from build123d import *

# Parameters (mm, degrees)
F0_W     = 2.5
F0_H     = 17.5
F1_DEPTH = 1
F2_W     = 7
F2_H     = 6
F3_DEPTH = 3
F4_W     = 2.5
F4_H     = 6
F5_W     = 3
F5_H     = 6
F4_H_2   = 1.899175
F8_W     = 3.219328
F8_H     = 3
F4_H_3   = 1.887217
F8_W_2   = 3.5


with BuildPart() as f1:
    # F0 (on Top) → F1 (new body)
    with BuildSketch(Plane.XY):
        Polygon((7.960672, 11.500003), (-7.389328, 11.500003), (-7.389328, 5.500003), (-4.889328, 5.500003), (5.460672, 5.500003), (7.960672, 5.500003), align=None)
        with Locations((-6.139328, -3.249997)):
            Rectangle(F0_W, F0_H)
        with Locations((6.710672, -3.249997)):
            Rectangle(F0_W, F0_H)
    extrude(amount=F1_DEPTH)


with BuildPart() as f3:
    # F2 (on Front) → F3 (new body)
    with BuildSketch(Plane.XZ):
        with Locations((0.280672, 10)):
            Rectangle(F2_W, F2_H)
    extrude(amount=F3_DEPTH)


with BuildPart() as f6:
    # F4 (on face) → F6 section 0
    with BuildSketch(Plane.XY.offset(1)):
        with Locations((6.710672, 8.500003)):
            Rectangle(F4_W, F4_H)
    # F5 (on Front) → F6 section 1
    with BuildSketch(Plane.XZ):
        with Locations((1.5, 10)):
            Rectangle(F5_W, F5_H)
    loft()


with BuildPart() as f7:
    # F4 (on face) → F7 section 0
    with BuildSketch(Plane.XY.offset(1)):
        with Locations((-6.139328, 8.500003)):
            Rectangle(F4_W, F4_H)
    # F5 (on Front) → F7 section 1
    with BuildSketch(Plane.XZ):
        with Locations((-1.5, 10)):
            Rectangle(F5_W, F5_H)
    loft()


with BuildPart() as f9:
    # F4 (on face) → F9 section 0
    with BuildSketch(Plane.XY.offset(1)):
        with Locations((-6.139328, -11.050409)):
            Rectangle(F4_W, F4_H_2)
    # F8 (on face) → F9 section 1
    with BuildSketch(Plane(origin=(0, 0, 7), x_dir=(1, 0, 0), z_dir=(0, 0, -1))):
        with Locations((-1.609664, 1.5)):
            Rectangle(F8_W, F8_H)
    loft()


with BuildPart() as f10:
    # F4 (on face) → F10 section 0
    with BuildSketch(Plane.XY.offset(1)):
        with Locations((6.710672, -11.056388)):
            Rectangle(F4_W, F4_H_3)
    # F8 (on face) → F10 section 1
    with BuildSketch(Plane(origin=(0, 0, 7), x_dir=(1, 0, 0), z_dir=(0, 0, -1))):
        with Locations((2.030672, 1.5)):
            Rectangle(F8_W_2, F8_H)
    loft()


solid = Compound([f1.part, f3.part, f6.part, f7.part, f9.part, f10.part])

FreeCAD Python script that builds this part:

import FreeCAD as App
import Part
import Sketcher

V = App.Vector

doc = App.newDocument("Part")
body = doc.addObject("PartDesign::Body", "Body")

sketch1 = body.newObject("Sketcher::SketchObject", "Sketch")
sketch1.AttachmentSupport = (doc.getObject("XY_Plane"), [""])
sketch1.MapMode = "FlatFace"
sketch1.addGeometry([
    Part.LineSegment(V(8, 11.5, 0), V(-7.4, 11.5, 0)),
    Part.LineSegment(V(-7.4, 11.5, 0), V(-7.4, -12, 0)),
    Part.LineSegment(V(-7.4, -12, 0), V(-4.9, -12, 0)),
    Part.LineSegment(V(-4.9, -12, 0), V(-4.9, 5.5, 0)),
    Part.LineSegment(V(-4.9, 5.5, 0), V(5.5, 5.5, 0)),
    Part.LineSegment(V(5.5, 5.5, 0), V(5.5, -12, 0)),
    Part.LineSegment(V(5.5, -12, 0), V(8, -12, 0)),
    Part.LineSegment(V(8, -12, 0), V(8, 11.5, 0)),
], False)
sketch1.addConstraint([
    Sketcher.Constraint("Coincident", 0, 2, 1, 1),
    Sketcher.Constraint("Coincident", 1, 2, 2, 1),
    Sketcher.Constraint("Coincident", 2, 2, 3, 1),
    Sketcher.Constraint("Coincident", 3, 2, 4, 1),
    Sketcher.Constraint("Coincident", 4, 2, 5, 1),
    Sketcher.Constraint("Coincident", 5, 2, 6, 1),
    Sketcher.Constraint("Coincident", 6, 2, 7, 1),
    Sketcher.Constraint("Coincident", 7, 2, 0, 1),
    Sketcher.Constraint("Horizontal", 0),
    Sketcher.Constraint("Vertical", 1),
    Sketcher.Constraint("Horizontal", 2),
    Sketcher.Constraint("Vertical", 3),
    Sketcher.Constraint("Horizontal", 4),
    Sketcher.Constraint("Vertical", 5),
    Sketcher.Constraint("Horizontal", 6),
    Sketcher.Constraint("Vertical", 7),
    Sketcher.Constraint("Horizontal", 2, 2, 5, 2),
    Sketcher.Constraint("Equal", 2, 6),
    Sketcher.Constraint("DistanceX", 2, 1, 2, 2, 2.5),
    Sketcher.Constraint("DistanceY", 1, 2, 1, 1, 23.5),
    Sketcher.Constraint("DistanceY", 3, 1, 3, 2, 17.5),
    Sketcher.Constraint("DistanceX", 0, 2, 0, 1, 15.35),
    Sketcher.Constraint("DistanceX", -1, 1, 4, 2, 5.460672),
    Sketcher.Constraint("DistanceY", -1, 1, 0, 2, 11.500003),
])
pad1 = body.newObject("PartDesign::Pad", "Pad")
pad1.Profile = sketch1
pad1.Length = 1
body2 = doc.addObject("PartDesign::Body", "Body001")

sketch2 = body2.newObject("Sketcher::SketchObject", "Sketch001")
sketch2.AttachmentSupport = (doc.getObject("XZ_Plane001"), [""])
sketch2.MapMode = "FlatFace"
sketch2.addGeometry([
    Part.LineSegment(V(-3, 13, 0), V(-3, 7, 0)),
    Part.LineSegment(V(-3, 7, 0), V(4, 7, 0)),
    Part.LineSegment(V(4, 7, 0), V(4, 13, 0)),
    Part.LineSegment(V(4, 13, 0), V(-3, 13, 0)),
], False)
sketch2.addConstraint([
    Sketcher.Constraint("Coincident", 0, 2, 1, 1),
    Sketcher.Constraint("Coincident", 1, 2, 2, 1),
    Sketcher.Constraint("Coincident", 2, 2, 3, 1),
    Sketcher.Constraint("Coincident", 3, 2, 0, 1),
    Sketcher.Constraint("Vertical", 0),
    Sketcher.Constraint("Horizontal", 1),
    Sketcher.Constraint("Vertical", 2),
    Sketcher.Constraint("Horizontal", 3),
    Sketcher.Constraint("DistanceX", 1, 1, 1, 2, 7.0),
    Sketcher.Constraint("DistanceY", 0, 2, 0, 1, 6.0),
    Sketcher.Constraint("DistanceY", -1, 1, 0, 2, 7.0),
    Sketcher.Constraint("DistanceX", 0, 2, -1, 1, 3.219328),
])
pad2 = body2.newObject("PartDesign::Pad", "Pad001")
pad2.Profile = sketch2
pad2.Length = 3
body3 = doc.addObject("PartDesign::Body", "Body002")

sketch3 = body3.newObject("Sketcher::SketchObject", "Sketch002")
sketch3.AttachmentSupport = (doc.getObject("XY_Plane002"), [""])
sketch3.MapMode = "FlatFace"
sketch3.AttachmentOffset = App.Placement(V(0, 0, 1), App.Rotation())
sketch3.addGeometry([
    Part.LineSegment(V(5.5, 11.5, 0), V(5.5, 5.5, 0)),
    Part.LineSegment(V(5.5, 5.5, 0), V(8, 5.5, 0)),
    Part.LineSegment(V(8, 5.5, 0), V(8, 11.5, 0)),
    Part.LineSegment(V(8, 11.5, 0), V(5.5, 11.5, 0)),
], False)
sketch3.addConstraint([
    Sketcher.Constraint("Coincident", 0, 2, 1, 1),
    Sketcher.Constraint("Coincident", 1, 2, 2, 1),
    Sketcher.Constraint("Coincident", 2, 2, 3, 1),
    Sketcher.Constraint("Coincident", 3, 2, 0, 1),
    Sketcher.Constraint("Vertical", 0),
    Sketcher.Constraint("Horizontal", 1),
    Sketcher.Constraint("Vertical", 2),
    Sketcher.Constraint("Horizontal", 3),
    Sketcher.Constraint("DistanceY", 0, 2, 0, 1, 6.0),
    Sketcher.Constraint("DistanceX", 1, 1, 1, 2, 2.5),
    Sketcher.Constraint("DistanceX", -1, 1, 0, 2, 5.460672),
    Sketcher.Constraint("DistanceY", -1, 1, 0, 2, 5.500003),
])

sketch4 = body3.newObject("Sketcher::SketchObject", "Sketch003")
sketch4.AttachmentSupport = (doc.getObject("XZ_Plane002"), [""])
sketch4.MapMode = "FlatFace"
sketch4.addGeometry([
    Part.LineSegment(V(0, 13, 0), V(0, 7, 0)),
    Part.LineSegment(V(0, 7, 0), V(3, 7, 0)),
    Part.LineSegment(V(3, 7, 0), V(3, 13, 0)),
    Part.LineSegment(V(3, 13, 0), V(0, 13, 0)),
], False)
sketch4.addConstraint([
    Sketcher.Constraint("Coincident", 0, 2, 1, 1),
    Sketcher.Constraint("Coincident", 1, 2, 2, 1),
    Sketcher.Constraint("Coincident", 2, 2, 3, 1),
    Sketcher.Constraint("Coincident", 3, 2, 0, 1),
    Sketcher.Constraint("Vertical", 0),
    Sketcher.Constraint("Horizontal", 1),
    Sketcher.Constraint("Vertical", 2),
    Sketcher.Constraint("Horizontal", 3),
    Sketcher.Constraint("PointOnObject", 0, 2, -2),
    Sketcher.Constraint("DistanceX", 1, 1, 1, 2, 3.0),
    Sketcher.Constraint("DistanceY", 0, 2, 0, 1, 6.0),
    Sketcher.Constraint("DistanceY", -1, 1, 0, 2, 7.0),
])

additiveloft = body3.newObject("PartDesign::AdditiveLoft", "AdditiveLoft")
additiveloft.Profile = sketch3
additiveloft.Sections = [sketch4]
body4 = doc.addObject("PartDesign::Body", "Body003")

sketch5 = body4.newObject("Sketcher::SketchObject", "Sketch004")
sketch5.AttachmentSupport = (doc.getObject("XY_Plane003"), [""])
sketch5.MapMode = "FlatFace"
sketch5.AttachmentOffset = App.Placement(V(0, 0, 1), App.Rotation())
sketch5.addGeometry([
    Part.LineSegment(V(-7.4, 11.5, 0), V(-7.4, 5.5, 0)),
    Part.LineSegment(V(-7.4, 5.5, 0), V(-4.9, 5.5, 0)),
    Part.LineSegment(V(-4.9, 5.5, 0), V(-4.9, 11.5, 0)),
    Part.LineSegment(V(-4.9, 11.5, 0), V(-7.4, 11.5, 0)),
], False)
sketch5.addConstraint([
    Sketcher.Constraint("Coincident", 0, 2, 1, 1),
    Sketcher.Constraint("Coincident", 1, 2, 2, 1),
    Sketcher.Constraint("Coincident", 2, 2, 3, 1),
    Sketcher.Constraint("Coincident", 3, 2, 0, 1),
    Sketcher.Constraint("Vertical", 0),
    Sketcher.Constraint("Horizontal", 1),
    Sketcher.Constraint("Vertical", 2),
    Sketcher.Constraint("Horizontal", 3),
    Sketcher.Constraint("DistanceY", 0, 2, 0, 1, 6.0),
    Sketcher.Constraint("DistanceX", 1, 1, 1, 2, 2.5),
    Sketcher.Constraint("DistanceX", 0, 2, -1, 1, 7.389328),
    Sketcher.Constraint("DistanceY", -1, 1, 0, 2, 5.500003),
])

sketch6 = body4.newObject("Sketcher::SketchObject", "Sketch005")
sketch6.AttachmentSupport = (doc.getObject("XZ_Plane003"), [""])
sketch6.MapMode = "FlatFace"
sketch6.addGeometry([
    Part.LineSegment(V(-3, 13, 0), V(-3, 7, 0)),
    Part.LineSegment(V(-3, 7, 0), V(0, 7, 0)),
    Part.LineSegment(V(0, 7, 0), V(0, 13, 0)),
    Part.LineSegment(V(0, 13, 0), V(-3, 13, 0)),
], False)
sketch6.addConstraint([
    Sketcher.Constraint("Coincident", 0, 2, 1, 1),
    Sketcher.Constraint("Coincident", 1, 2, 2, 1),
    Sketcher.Constraint("Coincident", 2, 2, 3, 1),
    Sketcher.Constraint("Coincident", 3, 2, 0, 1),
    Sketcher.Constraint("Vertical", 0),
    Sketcher.Constraint("Horizontal", 1),
    Sketcher.Constraint("Vertical", 2),
    Sketcher.Constraint("Horizontal", 3),
    Sketcher.Constraint("PointOnObject", 1, 2, -2),
    Sketcher.Constraint("DistanceX", 1, 1, 1, 2, 3.0),
    Sketcher.Constraint("DistanceY", 0, 2, 0, 1, 6.0),
    Sketcher.Constraint("DistanceY", -1, 1, 0, 2, 7.0),
])

additiveloft2 = body4.newObject("PartDesign::AdditiveLoft", "AdditiveLoft001")
additiveloft2.Profile = sketch5
additiveloft2.Sections = [sketch6]
body5 = doc.addObject("PartDesign::Body", "Body004")

sketch7 = body5.newObject("Sketcher::SketchObject", "Sketch006")
sketch7.AttachmentSupport = (doc.getObject("XY_Plane004"), [""])
sketch7.MapMode = "FlatFace"
sketch7.AttachmentOffset = App.Placement(V(0, 0, 1), App.Rotation())
sketch7.addGeometry([
    Part.LineSegment(V(-7.4, -10.1, 0), V(-7.4, -12, 0)),
    Part.LineSegment(V(-7.4, -12, 0), V(-4.9, -12, 0)),
    Part.LineSegment(V(-4.9, -12, 0), V(-4.9, -10.1, 0)),
    Part.LineSegment(V(-4.9, -10.1, 0), V(-7.4, -10.1, 0)),
], False)
sketch7.addConstraint([
    Sketcher.Constraint("Coincident", 0, 2, 1, 1),
    Sketcher.Constraint("Coincident", 1, 2, 2, 1),
    Sketcher.Constraint("Coincident", 2, 2, 3, 1),
    Sketcher.Constraint("Coincident", 3, 2, 0, 1),
    Sketcher.Constraint("Vertical", 0),
    Sketcher.Constraint("Horizontal", 1),
    Sketcher.Constraint("Vertical", 2),
    Sketcher.Constraint("Horizontal", 3),
    Sketcher.Constraint("DistanceX", 1, 1, 1, 2, 2.5),
    Sketcher.Constraint("DistanceY", 0, 2, 0, 1, 1.899175),
    Sketcher.Constraint("DistanceY", 2, 2, -1, 1, 10.100822),
    Sketcher.Constraint("DistanceX", 0, 2, -1, 1, 7.389328),
])

sketch8 = body5.newObject("Sketcher::SketchObject", "Sketch007")
sketch8.AttachmentSupport = (doc.getObject("XY_Plane004"), [""])
sketch8.MapMode = "FlatFace"
sketch8.AttachmentOffset = App.Placement(V(0, 0, 7), App.Rotation())
sketch8.addGeometry([
    Part.LineSegment(V(-3.2, -3, 0), V(-3.2, 0, 0)),
    Part.LineSegment(V(-3.2, 0, 0), V(0, 0, 0)),
    Part.LineSegment(V(0, 0, 0), V(0, -3, 0)),
    Part.LineSegment(V(0, -3, 0), V(-3.2, -3, 0)),
], False)
sketch8.addConstraint([
    Sketcher.Constraint("Coincident", 0, 2, 1, 1),
    Sketcher.Constraint("Coincident", 1, 2, 2, 1),
    Sketcher.Constraint("Coincident", 2, 2, 3, 1),
    Sketcher.Constraint("Coincident", 3, 2, 0, 1),
    Sketcher.Constraint("Vertical", 0),
    Sketcher.Constraint("Horizontal", 1),
    Sketcher.Constraint("Vertical", 2),
    Sketcher.Constraint("Horizontal", 3),
    Sketcher.Constraint("Coincident", 1, 2, -1, 1),
    Sketcher.Constraint("DistanceY", 0, 1, 0, 2, 3.0),
    Sketcher.Constraint("DistanceX", 1, 1, 1, 2, 3.219328),
])

additiveloft3 = body5.newObject("PartDesign::AdditiveLoft", "AdditiveLoft002")
additiveloft3.Profile = sketch7
additiveloft3.Sections = [sketch8]
body6 = doc.addObject("PartDesign::Body", "Body005")

sketch9 = body6.newObject("Sketcher::SketchObject", "Sketch008")
sketch9.AttachmentSupport = (doc.getObject("XY_Plane005"), [""])
sketch9.MapMode = "FlatFace"
sketch9.AttachmentOffset = App.Placement(V(0, 0, 1), App.Rotation())
sketch9.addGeometry([
    Part.LineSegment(V(5.5, -10.1, 0), V(5.5, -12, 0)),
    Part.LineSegment(V(5.5, -12, 0), V(8, -12, 0)),
    Part.LineSegment(V(8, -12, 0), V(8, -10.1, 0)),
    Part.LineSegment(V(8, -10.1, 0), V(5.5, -10.1, 0)),
], False)
sketch9.addConstraint([
    Sketcher.Constraint("Coincident", 0, 2, 1, 1),
    Sketcher.Constraint("Coincident", 1, 2, 2, 1),
    Sketcher.Constraint("Coincident", 2, 2, 3, 1),
    Sketcher.Constraint("Coincident", 3, 2, 0, 1),
    Sketcher.Constraint("Vertical", 0),
    Sketcher.Constraint("Horizontal", 1),
    Sketcher.Constraint("Vertical", 2),
    Sketcher.Constraint("Horizontal", 3),
    Sketcher.Constraint("DistanceX", 1, 1, 1, 2, 2.5),
    Sketcher.Constraint("DistanceY", 0, 2, 0, 1, 1.887217),
    Sketcher.Constraint("DistanceX", -1, 1, 0, 2, 5.460672),
    Sketcher.Constraint("DistanceY", 2, 2, -1, 1, 10.11278),
])

sketch10 = body6.newObject("Sketcher::SketchObject", "Sketch009")
sketch10.AttachmentSupport = (doc.getObject("XY_Plane005"), [""])
sketch10.MapMode = "FlatFace"
sketch10.AttachmentOffset = App.Placement(V(0, 0, 7), App.Rotation())
sketch10.addGeometry([
    Part.LineSegment(V(0.3, -3, 0), V(0.3, 0, 0)),
    Part.LineSegment(V(0.3, 0, 0), V(3.8, 0, 0)),
    Part.LineSegment(V(3.8, 0, 0), V(3.8, -3, 0)),
    Part.LineSegment(V(3.8, -3, 0), V(0.3, -3, 0)),
], False)
sketch10.addConstraint([
    Sketcher.Constraint("Coincident", 0, 2, 1, 1),
    Sketcher.Constraint("Coincident", 1, 2, 2, 1),
    Sketcher.Constraint("Coincident", 2, 2, 3, 1),
    Sketcher.Constraint("Coincident", 3, 2, 0, 1),
    Sketcher.Constraint("Vertical", 0),
    Sketcher.Constraint("Horizontal", 1),
    Sketcher.Constraint("Vertical", 2),
    Sketcher.Constraint("Horizontal", 3),
    Sketcher.Constraint("PointOnObject", 0, 2, -1),
    Sketcher.Constraint("DistanceY", 0, 1, 0, 2, 3.0),
    Sketcher.Constraint("DistanceX", 1, 1, 1, 2, 3.5),
    Sketcher.Constraint("DistanceX", -1, 1, 1, 2, 3.780672),
])

additiveloft4 = body6.newObject("PartDesign::AdditiveLoft", "AdditiveLoft003")
additiveloft4.Profile = sketch9
additiveloft4.Sections = [sketch10]

doc.recompute()
